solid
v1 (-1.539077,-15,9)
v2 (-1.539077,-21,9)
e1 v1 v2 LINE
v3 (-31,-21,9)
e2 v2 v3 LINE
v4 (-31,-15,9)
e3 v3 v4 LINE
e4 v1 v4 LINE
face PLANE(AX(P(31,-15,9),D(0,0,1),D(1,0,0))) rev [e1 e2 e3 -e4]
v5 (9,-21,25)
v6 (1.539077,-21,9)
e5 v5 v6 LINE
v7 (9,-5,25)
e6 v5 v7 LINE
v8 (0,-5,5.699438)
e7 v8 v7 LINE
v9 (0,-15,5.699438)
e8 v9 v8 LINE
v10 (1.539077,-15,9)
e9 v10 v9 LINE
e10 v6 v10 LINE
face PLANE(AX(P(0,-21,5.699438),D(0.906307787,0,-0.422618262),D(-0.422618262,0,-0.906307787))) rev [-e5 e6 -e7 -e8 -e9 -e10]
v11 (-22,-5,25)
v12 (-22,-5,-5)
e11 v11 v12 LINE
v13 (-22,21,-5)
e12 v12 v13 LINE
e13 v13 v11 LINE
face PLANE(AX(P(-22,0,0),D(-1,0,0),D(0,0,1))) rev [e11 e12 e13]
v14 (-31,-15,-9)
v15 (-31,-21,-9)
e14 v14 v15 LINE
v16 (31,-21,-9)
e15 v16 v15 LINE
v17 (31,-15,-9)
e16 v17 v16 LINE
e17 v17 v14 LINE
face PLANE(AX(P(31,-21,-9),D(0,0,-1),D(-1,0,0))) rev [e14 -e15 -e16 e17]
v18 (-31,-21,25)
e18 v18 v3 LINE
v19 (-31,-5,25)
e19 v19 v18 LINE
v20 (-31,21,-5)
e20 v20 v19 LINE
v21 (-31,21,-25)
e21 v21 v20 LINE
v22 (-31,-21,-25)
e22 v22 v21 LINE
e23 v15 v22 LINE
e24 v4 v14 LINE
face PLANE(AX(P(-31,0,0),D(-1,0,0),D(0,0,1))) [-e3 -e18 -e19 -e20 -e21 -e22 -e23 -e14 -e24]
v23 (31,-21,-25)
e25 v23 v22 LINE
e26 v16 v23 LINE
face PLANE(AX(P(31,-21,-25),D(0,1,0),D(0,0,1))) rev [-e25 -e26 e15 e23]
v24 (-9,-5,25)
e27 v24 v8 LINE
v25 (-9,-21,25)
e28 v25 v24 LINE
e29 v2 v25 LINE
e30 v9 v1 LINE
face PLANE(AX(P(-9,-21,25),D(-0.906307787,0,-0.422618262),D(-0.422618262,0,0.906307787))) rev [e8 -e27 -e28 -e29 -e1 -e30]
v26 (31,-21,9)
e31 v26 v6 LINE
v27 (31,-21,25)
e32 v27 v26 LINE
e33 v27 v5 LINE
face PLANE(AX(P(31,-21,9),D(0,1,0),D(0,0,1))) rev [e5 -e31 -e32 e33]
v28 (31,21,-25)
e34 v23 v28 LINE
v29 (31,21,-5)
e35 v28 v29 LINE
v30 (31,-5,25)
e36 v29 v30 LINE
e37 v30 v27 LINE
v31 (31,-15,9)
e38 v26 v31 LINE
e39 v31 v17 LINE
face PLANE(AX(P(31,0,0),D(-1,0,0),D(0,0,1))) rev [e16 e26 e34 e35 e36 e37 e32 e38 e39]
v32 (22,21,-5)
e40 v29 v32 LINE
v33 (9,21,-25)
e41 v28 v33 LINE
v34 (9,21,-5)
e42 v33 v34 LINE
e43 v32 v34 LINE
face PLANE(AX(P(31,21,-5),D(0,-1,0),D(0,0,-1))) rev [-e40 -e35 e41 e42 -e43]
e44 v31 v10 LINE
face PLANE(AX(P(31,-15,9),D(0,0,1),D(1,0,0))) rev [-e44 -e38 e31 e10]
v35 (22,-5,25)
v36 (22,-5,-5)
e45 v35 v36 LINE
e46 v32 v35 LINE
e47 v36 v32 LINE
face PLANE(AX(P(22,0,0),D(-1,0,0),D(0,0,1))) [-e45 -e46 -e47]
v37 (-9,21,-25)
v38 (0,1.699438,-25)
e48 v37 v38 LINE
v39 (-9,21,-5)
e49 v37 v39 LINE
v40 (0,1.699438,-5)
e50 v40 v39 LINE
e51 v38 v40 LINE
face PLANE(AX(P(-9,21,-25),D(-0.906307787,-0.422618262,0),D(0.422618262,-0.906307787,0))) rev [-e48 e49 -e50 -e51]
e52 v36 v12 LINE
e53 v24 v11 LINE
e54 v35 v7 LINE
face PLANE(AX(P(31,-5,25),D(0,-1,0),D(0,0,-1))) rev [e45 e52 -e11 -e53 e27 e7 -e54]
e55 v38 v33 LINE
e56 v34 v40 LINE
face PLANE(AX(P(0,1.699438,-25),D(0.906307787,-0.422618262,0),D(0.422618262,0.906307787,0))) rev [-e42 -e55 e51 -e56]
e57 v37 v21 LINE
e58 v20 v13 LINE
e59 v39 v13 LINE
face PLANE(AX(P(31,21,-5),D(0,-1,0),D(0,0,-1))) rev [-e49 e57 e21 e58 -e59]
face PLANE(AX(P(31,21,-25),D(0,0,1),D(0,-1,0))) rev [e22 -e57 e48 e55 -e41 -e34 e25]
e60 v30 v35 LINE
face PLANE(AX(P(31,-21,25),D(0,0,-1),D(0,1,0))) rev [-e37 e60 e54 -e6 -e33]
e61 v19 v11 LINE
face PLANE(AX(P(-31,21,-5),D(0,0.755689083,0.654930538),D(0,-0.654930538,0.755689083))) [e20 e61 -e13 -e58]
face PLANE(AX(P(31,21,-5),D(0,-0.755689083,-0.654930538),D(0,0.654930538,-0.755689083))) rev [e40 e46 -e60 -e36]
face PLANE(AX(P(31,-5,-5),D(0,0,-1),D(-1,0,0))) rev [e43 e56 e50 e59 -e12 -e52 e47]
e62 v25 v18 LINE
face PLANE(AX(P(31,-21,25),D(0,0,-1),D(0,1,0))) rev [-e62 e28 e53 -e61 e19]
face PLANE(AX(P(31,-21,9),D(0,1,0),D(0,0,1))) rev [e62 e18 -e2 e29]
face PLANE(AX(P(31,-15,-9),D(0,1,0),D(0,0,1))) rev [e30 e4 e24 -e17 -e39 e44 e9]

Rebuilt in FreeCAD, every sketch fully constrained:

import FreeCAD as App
import Part
import Sketcher
from FreeCAD import Vector
Q = App.Units.Quantity


def add_polygon(sketch, points):
    """Adds a closed chain of lines whose ends are joined by coincident constraints."""
    first, n = sketch.GeometryCount, len(points)
    for a, b in zip(points, points[1:] + points[:1]):
        sketch.addGeometry(Part.LineSegment(App.Vector(*a, 0), App.Vector(*b, 0)), False)
    for i in range(n):
        sketch.addConstraint(Sketcher.Constraint("Coincident", first + i, 2, first + (i + 1) % n, 1))

doc = App.newDocument("Part")
body = doc.addObject("PartDesign::Body", "Body")

# Sketch on YZ plane
sketch1 = doc.addObject("Sketcher::SketchObject", "Sketch")
body.addObject(sketch1)
sketch1.AttachmentSupport = (doc.YZ_Plane, [""])
sketch1.MapMode = "FlatFace"
add_polygon(sketch1, [(21, -25), (21, -5), (-5, -5), (-5, 25), (-21, 25), (-21, 9), (-15, 9), (-15, -9), (-21, -9), (-21, -25)])  # lines 0-9
sketch1.addConstraint([
    Sketcher.Constraint("Vertical", 0),
    Sketcher.Constraint("Horizontal", 1),
    Sketcher.Constraint("Vertical", 2),
    Sketcher.Constraint("Horizontal", 3),
    Sketcher.Constraint("Vertical", 4),
    Sketcher.Constraint("Horizontal", 5),
    Sketcher.Constraint("Vertical", 6),
    Sketcher.Constraint("Horizontal", 7),
    Sketcher.Constraint("Vertical", 8),
    Sketcher.Constraint("Horizontal", 9),
    Sketcher.Constraint("Symmetric", 3, 2, 9, 2, -1, 1),
    Sketcher.Constraint("Symmetric", 4, 2, 7, 2, -1),
    Sketcher.Constraint("Equal", 3, 4),
    Sketcher.Constraint("DistanceX", 1, 2, 1, 1, 26.0),
    Sketcher.Constraint("DistanceX", 3, 2, 3, 1, 16.0),
    Sketcher.Constraint("DistanceX", 5, 1, 5, 2, 6.0),
    Sketcher.Constraint("DistanceY", 0, 1, 0, 2, 20.0),
    Sketcher.Constraint("DistanceY", 2, 1, 2, 2, 30.0),
])
pad1 = doc.addObject("PartDesign::Pad", "Pad")
body.addObject(pad1)
pad1.Profile = sketch1
pad1.Length = 62
pad1.Midplane = True

# Sketch on YZ plane
sketch2 = doc.addObject("Sketcher::SketchObject", "Sketch001")
body.addObject(sketch2)
sketch2.AttachmentSupport = (doc.YZ_Plane, [""])
sketch2.MapMode = "FlatFace"
sketch2.AttachmentOffset = App.Placement(Vector(0, 0, 22), App.Rotation())
add_polygon(sketch2, [(21, -5), (-5, 25), (-5, -5)])  # lines 0-2
sketch2.addConstraint([
    Sketcher.Constraint("Vertical", 1),
    Sketcher.Constraint("Horizontal", 2),
    Sketcher.Constraint("DistanceX", 2, 1, 2, 2, 26.0),
    Sketcher.Constraint("DistanceY", 1, 2, 1, 1, 30.0),
    Sketcher.Constraint("DistanceX", 0, 2, -1, 1, 5.0),
    Sketcher.Constraint("DistanceY", -1, 1, 0, 2, 25.0),
])
pad2 = doc.addObject("PartDesign::Pad", "Pad001")
body.addObject(pad2)
pad2.Profile = sketch2
pad2.Length = 9

# Sketch on YZ plane
sketch3 = doc.addObject("Sketcher::SketchObject", "Sketch002")
body.addObject(sketch3)
sketch3.AttachmentSupport = (doc.YZ_Plane, [""])
sketch3.MapMode = "FlatFace"
sketch3.AttachmentOffset = App.Placement(Vector(0, 0, -22), App.Rotation())
add_polygon(sketch3, [(21, -5), (-5, 25), (-5, -5)])  # lines 0-2
sketch3.addConstraint([
    Sketcher.Constraint("Vertical", 1),
    Sketcher.Constraint("Horizontal", 2),
    Sketcher.Constraint("DistanceX", 2, 1, 2, 2, 26.0),
    Sketcher.Constraint("DistanceY", 1, 2, 1, 1, 30.0),
    Sketcher.Constraint("DistanceX", 0, 2, -1, 1, 5.0),
    Sketcher.Constraint("DistanceY", -1, 1, 0, 2, 25.0),
])
pad3 = doc.addObject("PartDesign::Pad", "Pad002")
body.addObject(pad3)
pad3.Profile = sketch3
pad3.Length = 9
pad3.Reversed = True

# Sketch on XZ plane
sketch4 = doc.addObject("Sketcher::SketchObject", "Sketch003")
body.addObject(sketch4)
sketch4.AttachmentSupport = (doc.XZ_Plane, [""])
sketch4.MapMode = "FlatFace"
add_polygon(sketch4, [(0, 5.699438), (-9, 25), (9, 25)])  # lines 0-2
sketch4.addConstraint([
    Sketcher.Constraint("Horizontal", 1),
    Sketcher.Constraint("PointOnObject", 2, 2, -2),
    Sketcher.Constraint("Equal", 0, 2),
    Sketcher.Constraint("DistanceX", 1, 1, 1, 2, 18.0),
    Sketcher.Constraint("Angle", 0, Q("115 deg")),
    Sketcher.Constraint("DistanceY", -1, 1, 0, 2, 25.0),
])
pocket1 = doc.addObject("PartDesign::Pocket", "Pocket")
body.addObject(pocket1)
pocket1.Profile = sketch4
pocket1.Type = "ThroughAll"
pocket1.Reversed = True

# Sketch on XY plane
sketch5 = doc.addObject("Sketcher::SketchObject", "Sketch004")
body.addObject(sketch5)
sketch5.AttachmentSupport = (doc.XY_Plane, [""])
sketch5.MapMode = "FlatFace"
add_polygon(sketch5, [(-9, 21), (0, 1.699438), (9, 21)])  # lines 0-2
sketch5.addConstraint([
    Sketcher.Constraint("Horizontal", 2),
    Sketcher.Constraint("PointOnObject", 0, 2, -2),
    Sketcher.Constraint("Equal", 0, 1),
    Sketcher.Constraint("DistanceX", 2, 2, 2, 1, 18.0),
    Sketcher.Constraint("Angle", 0, Q("-65 deg")),
    Sketcher.Constraint("DistanceY", -1, 1, 1, 2, 21.0),
])
pocket2 = doc.addObject("PartDesign::Pocket", "Pocket001")
body.addObject(pocket2)
pocket2.Profile = sketch5
pocket2.Type = "ThroughAll"

doc.recompute()
